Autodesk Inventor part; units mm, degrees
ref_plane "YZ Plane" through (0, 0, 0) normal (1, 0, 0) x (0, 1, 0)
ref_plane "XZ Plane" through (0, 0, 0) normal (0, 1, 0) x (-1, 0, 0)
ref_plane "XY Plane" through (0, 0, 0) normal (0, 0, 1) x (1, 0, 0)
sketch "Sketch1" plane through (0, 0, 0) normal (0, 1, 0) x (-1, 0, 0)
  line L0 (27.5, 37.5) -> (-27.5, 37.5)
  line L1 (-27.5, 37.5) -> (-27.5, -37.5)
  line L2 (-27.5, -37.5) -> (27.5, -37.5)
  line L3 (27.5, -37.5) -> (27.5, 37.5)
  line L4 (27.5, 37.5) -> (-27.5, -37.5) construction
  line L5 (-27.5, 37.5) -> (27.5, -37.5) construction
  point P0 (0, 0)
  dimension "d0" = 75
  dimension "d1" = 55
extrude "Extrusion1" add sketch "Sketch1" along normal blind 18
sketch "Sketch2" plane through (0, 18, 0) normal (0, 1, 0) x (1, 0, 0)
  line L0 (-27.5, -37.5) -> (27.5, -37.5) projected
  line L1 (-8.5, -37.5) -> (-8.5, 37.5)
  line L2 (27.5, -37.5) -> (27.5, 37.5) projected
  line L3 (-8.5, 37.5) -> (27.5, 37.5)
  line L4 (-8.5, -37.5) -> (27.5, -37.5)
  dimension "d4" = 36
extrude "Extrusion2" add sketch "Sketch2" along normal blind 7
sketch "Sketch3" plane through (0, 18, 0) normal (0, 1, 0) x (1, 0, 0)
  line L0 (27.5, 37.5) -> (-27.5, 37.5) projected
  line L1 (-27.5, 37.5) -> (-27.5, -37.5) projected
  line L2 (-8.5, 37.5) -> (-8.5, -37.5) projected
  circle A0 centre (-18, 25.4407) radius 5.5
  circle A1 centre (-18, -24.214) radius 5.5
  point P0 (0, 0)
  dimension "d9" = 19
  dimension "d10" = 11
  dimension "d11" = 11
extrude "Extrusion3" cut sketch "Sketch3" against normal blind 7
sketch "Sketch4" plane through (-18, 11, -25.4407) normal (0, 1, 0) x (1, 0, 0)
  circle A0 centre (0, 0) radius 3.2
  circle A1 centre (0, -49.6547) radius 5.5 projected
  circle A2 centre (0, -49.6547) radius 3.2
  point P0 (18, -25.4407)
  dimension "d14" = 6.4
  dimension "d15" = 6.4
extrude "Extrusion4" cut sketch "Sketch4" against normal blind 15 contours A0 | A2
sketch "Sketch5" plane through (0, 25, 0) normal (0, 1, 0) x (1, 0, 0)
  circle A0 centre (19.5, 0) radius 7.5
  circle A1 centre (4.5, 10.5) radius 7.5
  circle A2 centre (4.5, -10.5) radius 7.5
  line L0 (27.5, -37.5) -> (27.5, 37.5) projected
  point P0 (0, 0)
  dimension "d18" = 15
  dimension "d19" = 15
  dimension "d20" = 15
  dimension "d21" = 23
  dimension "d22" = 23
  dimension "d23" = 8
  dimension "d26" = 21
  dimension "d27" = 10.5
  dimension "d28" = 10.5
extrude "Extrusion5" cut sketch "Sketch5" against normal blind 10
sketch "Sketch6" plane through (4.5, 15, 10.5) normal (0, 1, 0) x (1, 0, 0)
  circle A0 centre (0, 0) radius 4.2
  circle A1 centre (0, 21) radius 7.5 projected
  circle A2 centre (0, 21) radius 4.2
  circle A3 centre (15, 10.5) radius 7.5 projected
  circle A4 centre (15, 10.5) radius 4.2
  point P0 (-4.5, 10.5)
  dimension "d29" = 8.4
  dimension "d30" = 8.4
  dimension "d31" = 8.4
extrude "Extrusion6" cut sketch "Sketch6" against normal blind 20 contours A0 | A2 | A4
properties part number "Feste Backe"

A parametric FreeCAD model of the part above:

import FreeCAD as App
import Part
import Sketcher

V = App.Vector


def add_polygon(sketch, points):
    """Adds a closed chain of lines whose ends are joined by coincident constraints."""
    first, n = sketch.GeometryCount, len(points)
    for a, b in zip(points, points[1:] + points[:1]):
        sketch.addGeometry(Part.LineSegment(App.Vector(*a, 0), App.Vector(*b, 0)), False)
    for i in range(n):
        sketch.addConstraint(Sketcher.Constraint("Coincident", first + i, 2, first + (i + 1) % n, 1))

doc = App.newDocument("Part")
body = doc.addObject("PartDesign::Body", "Body")

sketch1 = body.newObject("Sketcher::SketchObject", "Sketch")
sketch1.AttachmentSupport = (doc.getObject("XZ_Plane"), [""])
sketch1.MapMode = "FlatFace"
add_polygon(sketch1, [(-27.5, -37.5), (-27.5, 37.5), (27.5, 37.5), (27.5, -37.5)])
sketch1.addConstraint([
    Sketcher.Constraint("Vertical", 0),
    Sketcher.Constraint("Horizontal", 1),
    Sketcher.Constraint("Vertical", 2),
    Sketcher.Constraint("Horizontal", 3),
    Sketcher.Constraint("Symmetric", 0, 2, 2, 2, -1, 1),
    Sketcher.Constraint("DistanceX", 1, 1, 1, 2, 55.0),
    Sketcher.Constraint("DistanceY", 0, 1, 0, 2, 75.0),
])
pad1 = body.newObject("PartDesign::Pad", "Pad")
pad1.Profile = sketch1
pad1.Length = 18
pad1.Reversed = True

sketch2 = body.newObject("Sketcher::SketchObject", "Sketch001")
sketch2.AttachmentSupport = (doc.getObject("XZ_Plane"), [""])
sketch2.MapMode = "FlatFace"
sketch2.AttachmentOffset = App.Placement(V(0, 0, -18), App.Rotation())
add_polygon(sketch2, [(-8.5, -37.5), (-8.5, 37.5), (27.5, 37.5), (27.5, -37.5)])
sketch2.addConstraint([
    Sketcher.Constraint("Vertical", 0),
    Sketcher.Constraint("Horizontal", 1),
    Sketcher.Constraint("Vertical", 2),
    Sketcher.Constraint("Horizontal", 3),
    Sketcher.Constraint("DistanceX", 1, 1, 1, 2, 36.0),
    Sketcher.Constraint("DistanceY", 0, 1, 0, 2, 75.0),
    Sketcher.Constraint("DistanceX", 0, 2, -1, 1, 8.5),
    Sketcher.Constraint("DistanceY", -1, 1, 0, 2, 37.5),
])
pad2 = body.newObject("PartDesign::Pad", "Pad001")
pad2.Profile = sketch2
pad2.Length = 7
pad2.Reversed = True

sketch3 = body.newObject("Sketcher::SketchObject", "Sketch002")
sketch3.AttachmentSupport = (doc.getObject("XZ_Plane"), [""])
sketch3.MapMode = "FlatFace"
sketch3.AttachmentOffset = App.Placement(V(0, 0, -18), App.Rotation())
sketch3.addGeometry([
    Part.Circle(V(-18, -25.4407, 0), V(0, 0, 1), 5.5),
    Part.Circle(V(-18, 24.214, 0), V(0, 0, 1), 5.5),
], False)
sketch3.addConstraint([
    Sketcher.Constraint("Equal", 0, 1),
    Sketcher.Constraint("Vertical", 0, 3, 1, 3),
    Sketcher.Constraint("Diameter", 0, 11.0),
    Sketcher.Constraint("DistanceX", 0, 3, -1, 1, 18.0),
    Sketcher.Constraint("DistanceY", -1, 1, 1, 3, 24.214),
    Sketcher.Constraint("DistanceY", 0, 3, -1, 1, 25.4407),
])
pocket1 = body.newObject("PartDesign::Pocket", "Pocket")
pocket1.Profile = sketch3
pocket1.Length = 7
pocket1.Reversed = True

sketch4 = body.newObject("Sketcher::SketchObject", "Sketch003")
sketch4.AttachmentSupport = (doc.getObject("XZ_Plane"), [""])
sketch4.MapMode = "FlatFace"
sketch4.AttachmentOffset = App.Placement(V(0, 0, -11), App.Rotation())
sketch4.addGeometry([
    Part.Circle(V(-18, -25.4407, 0), V(0, 0, 1), 3.2),
    Part.Circle(V(-18, 24.214, 0), V(0, 0, 1), 3.2),
], False)
sketch4.addConstraint([
    Sketcher.Constraint("Equal", 0, 1),
    Sketcher.Constraint("Vertical", 0, 3, 1, 3),
    Sketcher.Constraint("Diameter", 0, 6.4),
    Sketcher.Constraint("DistanceX", 0, 3, -1, 1, 18.0),
    Sketcher.Constraint("DistanceY", -1, 1, 1, 3, 24.214),
    Sketcher.Constraint("DistanceY", 0, 3, -1, 1, 25.4407),
])
pocket2 = body.newObject("PartDesign::Pocket", "Pocket001")
pocket2.Profile = sketch4
pocket2.Length = 15
pocket2.Reversed = True

sketch5 = body.newObject("Sketcher::SketchObject", "Sketch004")
sketch5.AttachmentSupport = (doc.getObject("XZ_Plane"), [""])
sketch5.MapMode = "FlatFace"
sketch5.AttachmentOffset = App.Placement(V(0, 0, -25), App.Rotation())
sketch5.addGeometry([
    Part.Circle(V(19.5, 0, 0), V(0, 0, 1), 7.5),
    Part.Circle(V(4.5, -10.5, 0), V(0, 0, 1), 7.5),
    Part.Circle(V(4.5, 10.5, 0), V(0, 0, 1), 7.5),
], False)
sketch5.addConstraint([
    Sketcher.Constraint("Equal", 0, 1),
    Sketcher.Constraint("Equal", 1, 2),
    Sketcher.Constraint("Symmetric", 1, 3, 2, 3, -1),
    Sketcher.Constraint("PointOnObject", 0, 3, -1),
    Sketcher.Constraint("Diameter", 0, 15.0),
    Sketcher.Constraint("DistanceX", 1, 3, 0, 3, 15.0),
    Sketcher.Constraint("DistanceY", 1, 3, 2, 3, 21.0),
    Sketcher.Constraint("DistanceX", -1, 1, 0, 3, 19.5),
])
pocket3 = body.newObject("PartDesign::Pocket", "Pocket002")
pocket3.Profile = sketch5
pocket3.Length = 10
pocket3.Reversed = True

sketch6 = body.newObject("Sketcher::SketchObject", "Sketch005")
sketch6.AttachmentSupport = (doc.getObject("XZ_Plane"), [""])
sketch6.MapMode = "FlatFace"
sketch6.AttachmentOffset = App.Placement(V(0, 0, -15), App.Rotation())
sketch6.addGeometry([
    Part.Circle(V(4.5, 10.5, 0), V(0, 0, 1), 4.2),
    Part.Circle(V(4.5, -10.5, 0), V(0, 0, 1), 4.2),
    Part.Circle(V(19.5, 0, 0), V(0, 0, 1), 4.2),
], False)
sketch6.addConstraint([
    Sketcher.Constraint("Equal", 0, 1),
    Sketcher.Constraint("Equal", 1, 2),
    Sketcher.Constraint("Symmetric", 0, 3, 1, 3, -1),
    Sketcher.Constraint("PointOnObject", 2, 3, -1),
    Sketcher.Constraint("Diameter", 0, 8.4),
    Sketcher.Constraint("DistanceY", 1, 3, 0, 3, 21.0),
    Sketcher.Constraint("DistanceX", 0, 3, 2, 3, 15.0),
    Sketcher.Constraint("DistanceX", -1, 1, 0, 3, 4.5),
])
pocket4 = body.newObject("PartDesign::Pocket", "Pocket003")
pocket4.Profile = sketch6
pocket4.Length = 20
pocket4.Reversed = True

doc.recompute()
